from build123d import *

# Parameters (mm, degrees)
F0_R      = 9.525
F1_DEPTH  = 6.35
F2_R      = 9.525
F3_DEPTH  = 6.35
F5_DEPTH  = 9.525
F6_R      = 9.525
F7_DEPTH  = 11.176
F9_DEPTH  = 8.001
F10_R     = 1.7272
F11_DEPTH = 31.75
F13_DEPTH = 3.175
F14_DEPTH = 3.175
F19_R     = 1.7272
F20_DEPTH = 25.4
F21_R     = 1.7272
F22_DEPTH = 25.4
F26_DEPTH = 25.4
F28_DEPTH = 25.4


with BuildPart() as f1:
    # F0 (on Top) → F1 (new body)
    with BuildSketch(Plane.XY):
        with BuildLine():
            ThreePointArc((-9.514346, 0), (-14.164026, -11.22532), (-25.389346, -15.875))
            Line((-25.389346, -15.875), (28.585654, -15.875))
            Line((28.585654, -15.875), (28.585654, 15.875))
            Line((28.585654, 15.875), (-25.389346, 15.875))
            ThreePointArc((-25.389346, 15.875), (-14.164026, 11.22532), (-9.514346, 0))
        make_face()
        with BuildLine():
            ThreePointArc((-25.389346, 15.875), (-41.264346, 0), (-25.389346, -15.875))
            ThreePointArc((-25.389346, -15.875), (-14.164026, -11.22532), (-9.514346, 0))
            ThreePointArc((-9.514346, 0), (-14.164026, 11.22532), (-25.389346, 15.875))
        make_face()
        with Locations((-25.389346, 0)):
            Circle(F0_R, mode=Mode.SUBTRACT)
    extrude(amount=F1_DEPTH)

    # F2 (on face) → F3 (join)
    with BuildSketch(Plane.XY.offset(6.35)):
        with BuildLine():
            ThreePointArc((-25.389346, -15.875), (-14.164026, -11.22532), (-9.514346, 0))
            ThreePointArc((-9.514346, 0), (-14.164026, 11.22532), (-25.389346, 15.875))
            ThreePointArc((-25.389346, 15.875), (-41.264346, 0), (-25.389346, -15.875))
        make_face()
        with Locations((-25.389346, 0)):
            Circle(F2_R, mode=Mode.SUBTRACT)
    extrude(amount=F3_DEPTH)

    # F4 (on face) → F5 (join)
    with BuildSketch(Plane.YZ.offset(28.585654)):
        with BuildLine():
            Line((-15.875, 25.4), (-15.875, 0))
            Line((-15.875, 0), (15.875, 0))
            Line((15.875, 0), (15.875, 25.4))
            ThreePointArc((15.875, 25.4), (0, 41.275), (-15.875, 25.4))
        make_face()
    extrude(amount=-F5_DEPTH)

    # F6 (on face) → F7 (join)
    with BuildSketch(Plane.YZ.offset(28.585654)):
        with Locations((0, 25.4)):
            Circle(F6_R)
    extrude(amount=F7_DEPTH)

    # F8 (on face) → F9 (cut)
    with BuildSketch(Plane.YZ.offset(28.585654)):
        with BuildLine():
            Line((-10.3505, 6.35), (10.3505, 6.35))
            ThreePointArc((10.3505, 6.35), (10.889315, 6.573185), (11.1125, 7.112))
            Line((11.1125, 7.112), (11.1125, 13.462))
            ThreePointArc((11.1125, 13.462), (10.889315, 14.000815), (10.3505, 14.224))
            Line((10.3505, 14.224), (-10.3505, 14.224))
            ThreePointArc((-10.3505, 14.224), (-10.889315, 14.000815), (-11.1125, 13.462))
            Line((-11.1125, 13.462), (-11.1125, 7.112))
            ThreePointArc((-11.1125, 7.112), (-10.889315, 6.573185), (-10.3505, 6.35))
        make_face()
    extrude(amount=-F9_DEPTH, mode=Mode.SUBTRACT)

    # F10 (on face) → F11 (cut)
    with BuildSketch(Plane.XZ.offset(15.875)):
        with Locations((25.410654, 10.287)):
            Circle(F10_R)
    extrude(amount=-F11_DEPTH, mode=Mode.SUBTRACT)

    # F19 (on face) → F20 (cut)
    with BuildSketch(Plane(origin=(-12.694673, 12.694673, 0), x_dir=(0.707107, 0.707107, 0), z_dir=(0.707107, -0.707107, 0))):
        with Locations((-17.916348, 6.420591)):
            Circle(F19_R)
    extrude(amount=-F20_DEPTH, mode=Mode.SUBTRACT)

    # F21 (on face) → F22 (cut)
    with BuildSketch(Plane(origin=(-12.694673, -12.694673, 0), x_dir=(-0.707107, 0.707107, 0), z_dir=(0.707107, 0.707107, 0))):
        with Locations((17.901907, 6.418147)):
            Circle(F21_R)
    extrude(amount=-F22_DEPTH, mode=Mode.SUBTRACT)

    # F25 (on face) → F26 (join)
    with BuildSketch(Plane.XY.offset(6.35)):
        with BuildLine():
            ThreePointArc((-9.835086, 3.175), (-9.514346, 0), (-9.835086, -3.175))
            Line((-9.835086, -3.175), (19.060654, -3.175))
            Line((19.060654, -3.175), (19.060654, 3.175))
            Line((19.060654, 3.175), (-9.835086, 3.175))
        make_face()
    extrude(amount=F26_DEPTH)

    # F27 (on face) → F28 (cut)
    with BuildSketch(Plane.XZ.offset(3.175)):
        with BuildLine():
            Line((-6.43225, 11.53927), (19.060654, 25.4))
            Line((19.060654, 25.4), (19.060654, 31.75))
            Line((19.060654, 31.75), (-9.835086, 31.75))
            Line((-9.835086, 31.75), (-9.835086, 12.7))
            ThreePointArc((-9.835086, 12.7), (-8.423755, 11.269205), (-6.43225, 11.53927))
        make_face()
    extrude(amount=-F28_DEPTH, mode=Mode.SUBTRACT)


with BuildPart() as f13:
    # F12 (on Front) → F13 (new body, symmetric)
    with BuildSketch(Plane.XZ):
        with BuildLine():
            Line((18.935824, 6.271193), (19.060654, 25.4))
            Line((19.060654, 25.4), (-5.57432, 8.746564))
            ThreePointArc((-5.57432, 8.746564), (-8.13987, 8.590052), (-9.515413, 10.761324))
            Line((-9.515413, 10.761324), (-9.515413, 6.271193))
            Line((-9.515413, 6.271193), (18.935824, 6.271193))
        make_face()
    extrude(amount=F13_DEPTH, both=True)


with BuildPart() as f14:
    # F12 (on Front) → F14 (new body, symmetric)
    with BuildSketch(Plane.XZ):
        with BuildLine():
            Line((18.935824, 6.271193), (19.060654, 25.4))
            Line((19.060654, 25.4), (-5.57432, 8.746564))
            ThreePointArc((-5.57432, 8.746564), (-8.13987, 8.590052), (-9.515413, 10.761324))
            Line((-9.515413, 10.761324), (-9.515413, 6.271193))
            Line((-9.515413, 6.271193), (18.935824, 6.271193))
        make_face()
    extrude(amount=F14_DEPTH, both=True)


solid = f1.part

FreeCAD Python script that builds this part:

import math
import FreeCAD as App
import Part
import Sketcher

V = App.Vector
Q = App.Units.Quantity

doc = App.newDocument("Part")
body = doc.addObject("PartDesign::Body", "Body")

# Sketch on XY plane
sketch1 = body.newObject("Sketcher::SketchObject", "Sketch")
sketch1.AttachmentSupport = (doc.getObject("XY_Plane"), [""])
sketch1.MapMode = "FlatFace"
sketch1.addGeometry([
    Part.LineSegment(V(-25, -16, 0), V(29, -16, 0)),  # 0
    Part.LineSegment(V(29, -16, 0), V(29, 16, 0)),  # 1
    Part.LineSegment(V(29, 16, 0), V(-25, 16, 0)),  # 2
    Part.ArcOfCircle(Part.Circle(V(-25, 0, 0), V(0, 0, 1), 16), math.radians(90), math.radians(270)),  # 3
    Part.Circle(V(-25, 0, 0), V(0, 0, 1), 10),  # 4
], False)
sketch1.addConstraint([
    Sketcher.Constraint("Coincident", 0, 2, 1, 1),
    Sketcher.Constraint("Coincident", 1, 2, 2, 1),
    Sketcher.Constraint("Tangent", 2, 2, 3, 1),
    Sketcher.Constraint("Tangent", 3, 2, 0, 1),
    Sketcher.Constraint("Horizontal", 0),
    Sketcher.Constraint("Vertical", 1),
    Sketcher.Constraint("Horizontal", 2),
    Sketcher.Constraint("Coincident", 4, 3, 3, 3),
    Sketcher.Constraint("PointOnObject", 3, 3, -1),
    Sketcher.Constraint("Diameter", 4, Q("0.75 in")),
    Sketcher.Constraint("Radius", 3, Q("0.625 in")),
    Sketcher.Constraint("DistanceX", 0, 1, 0, 2, Q("2.125 in")),
    Sketcher.Constraint("DistanceX", 3, 3, -1, 1, Q("25.389346 mm")),
])
pad1 = body.newObject("PartDesign::Pad", "Pad")
pad1.Profile = sketch1
pad1.Length = Q("0.25 in")

# Sketch on XY plane
sketch2 = body.newObject("Sketcher::SketchObject", "Sketch001")
sketch2.AttachmentSupport = (doc.getObject("XY_Plane"), [""])
sketch2.MapMode = "FlatFace"
sketch2.AttachmentOffset = App.Placement(V(0, 0, 0.25 * 25.4), App.Rotation())
sketch2.addGeometry([
    Part.ArcOfCircle(Part.Circle(V(-25, 0, 0), V(0, 0, 1), 16), math.radians(-90), math.radians(0)),
    Part.ArcOfCircle(Part.Circle(V(-25, 0, 0), V(0, 0, 1), 16), math.radians(0), math.radians(90)),
    Part.ArcOfCircle(Part.Circle(V(-25, 0, 0), V(0, 0, 1), 16), math.radians(90), math.radians(270)),
    Part.Circle(V(-25, 0, 0), V(0, 0, 1), 10),
], False)
sketch2.addConstraint([
    Sketcher.Constraint("Tangent", 0, 2, 1, 1),
    Sketcher.Constraint("Tangent", 1, 2, 2, 1),
    Sketcher.Constraint("Tangent", 2, 2, 0, 1),
    Sketcher.Constraint("Coincident", 3, 3, 0, 3),
    Sketcher.Constraint("Symmetric", 1, 2, 2, 2, -1),
    Sketcher.Constraint("PointOnObject", 0, 2, -1),
    Sketcher.Constraint("Vertical", 3, 3, 1, 2),
    Sketcher.Constraint("Diameter", 3, Q("0.75 in")),
    Sketcher.Constraint("Radius", 0, Q("0.625 in")),
    Sketcher.Constraint("DistanceX", 0, 3, -1, 1, Q("25.389347 mm")),
])
pad2 = body.newObject("PartDesign::Pad", "Pad001")
pad2.Profile = sketch2
pad2.Length = Q("0.25 in")

# Sketch on YZ plane
sketch3 = body.newObject("Sketcher::SketchObject", "Sketch002")
sketch3.AttachmentSupport = (doc.getObject("YZ_Plane"), [""])
sketch3.MapMode = "FlatFace"
sketch3.AttachmentOffset = App.Placement(V(0, 0, 28.585654), App.Rotation())
sketch3.addGeometry([
    Part.LineSegment(V(-16, 25, 0), V(-16, 0, 0)),
    Part.LineSegment(V(-16, 0, 0), V(16, 0, 0)),
    Part.LineSegment(V(16, 0, 0), V(16, 25, 0)),
    Part.ArcOfCircle(Part.Circle(V(0, 25, 0), V(0, 0, 1), 16), math.radians(0), math.radians(180)),
], False)
sketch3.addConstraint([
    Sketcher.Constraint("Coincident", 0, 2, 1, 1),
    Sketcher.Constraint("Coincident", 1, 2, 2, 1),
    Sketcher.Constraint("Tangent", 2, 2, 3, 1),
    Sketcher.Constraint("Tangent", 3, 2, 0, 1),
    Sketcher.Constraint("Vertical", 0),
    Sketcher.Constraint("Horizontal", 1),
    Sketcher.Constraint("Vertical", 2),
    Sketcher.Constraint("Symmetric", 0, 2, 1, 2, -1, 1),
    Sketcher.Constraint("DistanceY", 0, 2, 0, 1, Q("1 in")),
    Sketcher.Constraint("Radius", 3, Q("0.625 in")),
])
pad3 = body.newObject("PartDesign::Pad", "Pad002")
pad3.Profile = sketch3
pad3.Length = Q("0.375 in")
pad3.Reversed = True

# Sketch on YZ plane
sketch4 = body.newObject("Sketcher::SketchObject", "Sketch003")
sketch4.AttachmentSupport = (doc.getObject("YZ_Plane"), [""])
sketch4.MapMode = "FlatFace"
sketch4.AttachmentOffset = App.Placement(V(0, 0, 28.585654), App.Rotation())
sketch4.addGeometry(Part.Circle(V(0, 25, 0), V(0, 0, 1), 10), False)
sketch4.addConstraint([
    Sketcher.Constraint("PointOnObject", 0, 3, -2),
    Sketcher.Constraint("Diameter", 0, Q("0.75 in")),
    Sketcher.Constraint("DistanceY", -1, 1, 0, 3, Q("1 in")),
])
pad4 = body.newObject("PartDesign::Pad", "Pad003")
pad4.Profile = sketch4
pad4.Length = Q("0.44 in")

# Sketch on YZ plane
sketch5 = body.newObject("Sketcher::SketchObject", "Sketch004")
sketch5.AttachmentSupport = (doc.getObject("YZ_Plane"), [""])
sketch5.MapMode = "FlatFace"
sketch5.AttachmentOffset = App.Placement(V(0, 0, 28.585654), App.Rotation())
sketch5.addGeometry([
    Part.LineSegment(V(-10.4, 6.3, 0), V(10.4, 6.3, 0)),  # 0
    Part.ArcOfCircle(Part.Circle(V(10.4, 7.1, 0), V(0, 0, 1), 0.8), math.radians(-90), math.radians(0)),  # 1
    Part.LineSegment(V(11.1, 7.1, 0), V(11.1, 13.5, 0)),  # 2
    Part.ArcOfCircle(Part.Circle(V(10.4, 13.5, 0), V(0, 0, 1), 0.8), math.radians(0), math.radians(90)),  # 3
    Part.LineSegment(V(10.4, 14.2, 0), V(-10.4, 14.2, 0)),  # 4
    Part.ArcOfCircle(Part.Circle(V(-10.4, 13.5, 0), V(0, 0, 1), 0.8), math.radians(90), math.radians(180)),  # 5
    Part.LineSegment(V(-11.1, 13.5, 0), V(-11.1, 7.1, 0)),  # 6
    Part.ArcOfCircle(Part.Circle(V(-10.4, 7.1, 0), V(0, 0, 1), 0.8), math.radians(-180), math.radians(-90)),  # 7
], False)
sketch5.addConstraint([
    Sketcher.Constraint("Tangent", 0, 2, 1, 1),
    Sketcher.Constraint("Tangent", 1, 2, 2, 1),
    Sketcher.Constraint("Tangent", 2, 2, 3, 1),
    Sketcher.Constraint("Tangent", 3, 2, 4, 1),
    Sketcher.Constraint("Tangent", 4, 2, 5, 1),
    Sketcher.Constraint("Tangent", 5, 2, 6, 1),
    Sketcher.Constraint("Tangent", 6, 2, 7, 1),
    Sketcher.Constraint("Tangent", 7, 2, 0, 1),
    Sketcher.Constraint("Horizontal", 0),
    Sketcher.Constraint("Vertical", 2),
    Sketcher.Constraint("Horizontal", 4),
    Sketcher.Constraint("Vertical", 6),
    Sketcher.Constraint("Equal", 1, 3),
    Sketcher.Constraint("Equal", 3, 5),
    Sketcher.Constraint("Equal", 5, 7),
    Sketcher.Constraint("Radius", 1, Q("0.03 in")),
    Sketcher.Constraint("DistanceY", 2, 1, 2, 2, Q("0.25 in")),
    Sketcher.Constraint("DistanceX", 0, 1, 0, 2, Q("0.815 in")),
    Sketcher.Constraint("DistanceY", -1, 1, 1, 3, Q("0.28 in")),
    Sketcher.Constraint("DistanceX", -1, 1, 1, 2, Q("0.4375 in")),
])
pocket1 = body.newObject("PartDesign::Pocket", "Pocket")
pocket1.Profile = sketch5
pocket1.Length = Q("0.315 in")

# Sketch on XZ plane
sketch6 = body.newObject("Sketcher::SketchObject", "Sketch005")
sketch6.AttachmentSupport = (doc.getObject("XZ_Plane"), [""])
sketch6.MapMode = "FlatFace"
sketch6.AttachmentOffset = App.Placement(V(0, 0, 0.625 * 25.4), App.Rotation())
sketch6.addGeometry(Part.Circle(V(25.4, 10.3, 0), V(0, 0, 1), 1.7), False)
sketch6.addConstraint([
    Sketcher.Constraint("Diameter", 0, Q("0.136 in")),
    Sketcher.Constraint("DistanceY", -1, 1, 0, 3, Q("0.405 in")),
    Sketcher.Constraint("DistanceX", -1, 1, 0, 3, Q("25.410654 mm")),
])
pocket2 = body.newObject("PartDesign::Pocket", "Pocket001")
pocket2.Profile = sketch6
pocket2.Length = Q("1.25 in")

# Sketch on an angled plane
sketch7 = body.newObject("Sketcher::SketchObject", "Sketch006")
sketch7.Placement = App.Placement(V(-12.694673, 12.694673, 0), App.Rotation(V(0.707106781, 0.707106781, 0), V(0, 0, 0.999999999), V(0.707106781, -0.707106781, 0), "ZXY"))
sketch7.addGeometry(Part.Circle(V(-17.9, 6.4, 0), V(0, 0, 1), 1.7), False)
sketch7.addConstraint([
    Sketcher.Constraint("Diameter", 0, Q("0.136 in")),
    Sketcher.Constraint("DistanceY", -1, 1, 0, 3, Q("6.420591 mm")),
    Sketcher.Constraint("DistanceX", 0, 3, -1, 1, Q("17.916348 mm")),
])
pocket3 = body.newObject("PartDesign::Pocket", "Pocket002")
pocket3.Profile = sketch7
pocket3.Length = Q("1 in")

# Sketch on an angled plane
sketch8 = body.newObject("Sketcher::SketchObject", "Sketch007")
sketch8.Placement = App.Placement(V(-12.694673, -12.694673, 0), App.Rotation(V(-0.707106781, 0.707106781, 0), V(0, 0, 0.999999999), V(0.707106781, 0.707106781, 0), "ZXY"))
sketch8.addGeometry(Part.Circle(V(17.9, 6.4, 0), V(0, 0, 1), 1.7), False)
sketch8.addConstraint([
    Sketcher.Constraint("Diameter", 0, Q("0.136 in")),
    Sketcher.Constraint("DistanceX", -1, 1, 0, 3, Q("17.901907 mm")),
    Sketcher.Constraint("DistanceY", -1, 1, 0, 3, Q("6.418147 mm")),
])
pocket4 = body.newObject("PartDesign::Pocket", "Pocket003")
pocket4.Profile = sketch8
pocket4.Length = Q("1 in")

# Sketch on XY plane
sketch9 = body.newObject("Sketcher::SketchObject", "Sketch008")
sketch9.AttachmentSupport = (doc.getObject("XY_Plane"), [""])
sketch9.MapMode = "FlatFace"
sketch9.AttachmentOffset = App.Placement(V(0, 0, 0.25 * 25.4), App.Rotation())
sketch9.addGeometry([
    Part.ArcOfCircle(Part.Circle(V(-25, 0, 0), V(0, 0, 1), 16), math.radians(-12), math.radians(12)),
    Part.LineSegment(V(-10, -3, 0), V(19, -3, 0)),
    Part.LineSegment(V(19, -3, 0), V(19, 3, 0)),
    Part.LineSegment(V(19, 3, 0), V(-10, 3, 0)),
], False)
sketch9.addConstraint([
    Sketcher.Constraint("Coincident", 0, 1, 1, 1),
    Sketcher.Constraint("Coincident", 1, 2, 2, 1),
    Sketcher.Constraint("Coincident", 2, 2, 3, 1),
    Sketcher.Constraint("Coincident", 3, 2, 0, 2),
    Sketcher.Constraint("Horizontal", 1),
    Sketcher.Constraint("Vertical", 2),
    Sketcher.Constraint("Horizontal", 3),
    Sketcher.Constraint("Symmetric", 0, 1, 3, 2, -1),
    Sketcher.Constraint("DistanceY", 2, 1, 2, 2, Q("0.25 in")),
    Sketcher.Constraint("Radius", 0, Q("15.875006 mm")),
    Sketcher.Constraint("DistanceX", 1, 1, 1, 2, Q("28.89574 mm")),
    Sketcher.Constraint("DistanceX", 0, 3, -1, 1, Q("25.389352 mm")),
])
pad5 = body.newObject("PartDesign::Pad", "Pad004")
pad5.Profile = sketch9
pad5.Length = Q("1 in")

# Sketch on XZ plane
sketch10 = body.newObject("Sketcher::SketchObject", "Sketch009")
sketch10.AttachmentSupport = (doc.getObject("XZ_Plane"), [""])
sketch10.MapMode = "FlatFace"
sketch10.AttachmentOffset = App.Placement(V(0, 0, 0.125 * 25.4), App.Rotation())
sketch10.addGeometry([
    Part.LineSegment(V(-6.4, 11.5, 0), V(19.1, 25.4, 0)),  # 0
    Part.LineSegment(V(19.1, 25.4, 0), V(19.1, 31.8, 0)),  # 1
    Part.LineSegment(V(19.1, 31.8, 0), V(-9.8, 31.8, 0)),  # 2
    Part.LineSegment(V(-9.8, 31.8, 0), V(-9.8, 12.7, 0)),  # 3
    Part.ArcOfCircle(Part.Circle(V(-7.7, 13.4, 0), V(0, 0, 1), 2.2), math.radians(-162), math.radians(-56)),  # 4
], False)
sketch10.addConstraint([
    Sketcher.Constraint("Coincident", 0, 2, 1, 1),
    Sketcher.Constraint("Coincident", 1, 2, 2, 1),
    Sketcher.Constraint("Coincident", 2, 2, 3, 1),
    Sketcher.Constraint("Coincident", 3, 2, 4, 1),
    Sketcher.Constraint("Coincident", 4, 2, 0, 1),
    Sketcher.Constraint("Vertical", 1),
    Sketcher.Constraint("Horizontal", 2),
    Sketcher.Constraint("Vertical", 3),
    Sketcher.Constraint("DistanceY", -1, 1, 0, 2, Q("1 in")),
    Sketcher.Constraint("DistanceY", 1, 1, 1, 2, Q("0.25 in")),
    Sketcher.Constraint("DistanceY", 3, 2, 3, 1, Q("0.75 in")),
    Sketcher.Constraint("Radius", 4, Q("2.24754 mm")),
    Sketcher.Constraint("DistanceX", 2, 2, 2, 1, Q("28.89574 mm")),
    Sketcher.Constraint("DistanceX", 4, 2, -1, 1, Q("6.43225 mm")),
    Sketcher.Constraint("DistanceY", -1, 1, 4, 2, Q("11.53927 mm")),
    Sketcher.Constraint("DistanceX", 4, 3, 0, 2, Q("26.75881 mm")),
])
pocket5 = body.newObject("PartDesign::Pocket", "Pocket004")
pocket5.Profile = sketch10
pocket5.Length = Q("1 in")
body2 = doc.addObject("PartDesign::Body", "Body001")

# Sketch on XZ plane
sketch11 = body2.newObject("Sketcher::SketchObject", "Sketch010")
sketch11.AttachmentSupport = (doc.getObject("XZ_Plane001"), [""])
sketch11.MapMode = "FlatFace"
sketch11.addGeometry([
    Part.LineSegment(V(18.9, 6.3, 0), V(19.1, 25.4, 0)),  # 0
    Part.LineSegment(V(19.1, 25.4, 0), V(-5.6, 8.7, 0)),  # 1
    Part.ArcOfCircle(Part.Circle(V(-7, 10.8, 0), V(0, 0, 1), 2.5), math.radians(-178), math.radians(-56)),  # 2
    Part.LineSegment(V(-9.5, 10.8, 0), V(-9.5, 6.3, 0)),  # 3
    Part.LineSegment(V(-9.5, 6.3, 0), V(18.9, 6.3, 0)),  # 4
], False)
sketch11.addConstraint([
    Sketcher.Constraint("Coincident", 0, 2, 1, 1),
    Sketcher.Constraint("Tangent", 1, 2, 2, 2),
    Sketcher.Constraint("Coincident", 2, 1, 3, 1),
    Sketcher.Constraint("Coincident", 3, 2, 4, 1),
    Sketcher.Constraint("Coincident", 4, 2, 0, 1),
    Sketcher.Constraint("Vertical", 3),
    Sketcher.Constraint("Horizontal", 4),
    Sketcher.Constraint("DistanceY", -1, 1, 0, 2, Q("1 in")),
    Sketcher.Constraint("Radius", 2, Q("2.527055 mm")),
    Sketcher.Constraint("DistanceX", 2, 3, 0, 2, Q("1.0256001 in")),
    Sketcher.Constraint("DistanceY", 3, 2, 3, 1, Q("4.490131 mm")),
    Sketcher.Constraint("Distance", 1, Q("29.735818 mm")),
    Sketcher.Constraint("DistanceX", 4, 1, 4, 2, Q("28.451237 mm")),
    Sketcher.Constraint("DistanceX", 1, 2, -1, 1, Q("5.57432 mm")),
    Sketcher.Constraint("DistanceY", 1, 2, 2, 1, Q("2.01476 mm")),
])
pad6 = body2.newObject("PartDesign::Pad", "Pad005")
pad6.Profile = sketch11
pad6.Length = Q("0.25 in")
pad6.Midplane = True
body3 = doc.addObject("PartDesign::Body", "Body002")

# Sketch on XZ plane
sketch12 = body3.newObject("Sketcher::SketchObject", "Sketch011")
sketch12.AttachmentSupport = (doc.getObject("XZ_Plane002"), [""])
sketch12.MapMode = "FlatFace"
sketch12.addGeometry([
    Part.LineSegment(V(18.9, 6.3, 0), V(19.1, 25.4, 0)),  # 0
    Part.LineSegment(V(19.1, 25.4, 0), V(-5.6, 8.7, 0)),  # 1
    Part.ArcOfCircle(Part.Circle(V(-7, 10.8, 0), V(0, 0, 1), 2.5), math.radians(-178), math.radians(-56)),  # 2
    Part.LineSegment(V(-9.5, 10.8, 0), V(-9.5, 6.3, 0)),  # 3
    Part.LineSegment(V(-9.5, 6.3, 0), V(18.9, 6.3, 0)),  # 4
], False)
sketch12.addConstraint([
    Sketcher.Constraint("Coincident", 0, 2, 1, 1),
    Sketcher.Constraint("Tangent", 1, 2, 2, 2),
    Sketcher.Constraint("Coincident", 2, 1, 3, 1),
    Sketcher.Constraint("Coincident", 3, 2, 4, 1),
    Sketcher.Constraint("Coincident", 4, 2, 0, 1),
    Sketcher.Constraint("Vertical", 3),
    Sketcher.Constraint("Horizontal", 4),
    Sketcher.Constraint("DistanceY", -1, 1, 0, 2, Q("1 in")),
    Sketcher.Constraint("Radius", 2, Q("2.527055 mm")),
    Sketcher.Constraint("DistanceX", 2, 3, 0, 2, Q("1.0256001 in")),
    Sketcher.Constraint("DistanceY", 3, 2, 3, 1, Q("4.490131 mm")),
    Sketcher.Constraint("Distance", 1, Q("29.735818 mm")),
    Sketcher.Constraint("DistanceX", 4, 1, 4, 2, Q("28.451237 mm")),
    Sketcher.Constraint("DistanceX", 1, 2, -1, 1, Q("5.57432 mm")),
    Sketcher.Constraint("DistanceY", 1, 2, 2, 1, Q("2.01476 mm")),
])
pad7 = body3.newObject("PartDesign::Pad", "Pad006")
pad7.Profile = sketch12
pad7.Length = Q("0.25 in")
pad7.Midplane = True
body2.Visibility = False
body3.Visibility = False

doc.recompute()
